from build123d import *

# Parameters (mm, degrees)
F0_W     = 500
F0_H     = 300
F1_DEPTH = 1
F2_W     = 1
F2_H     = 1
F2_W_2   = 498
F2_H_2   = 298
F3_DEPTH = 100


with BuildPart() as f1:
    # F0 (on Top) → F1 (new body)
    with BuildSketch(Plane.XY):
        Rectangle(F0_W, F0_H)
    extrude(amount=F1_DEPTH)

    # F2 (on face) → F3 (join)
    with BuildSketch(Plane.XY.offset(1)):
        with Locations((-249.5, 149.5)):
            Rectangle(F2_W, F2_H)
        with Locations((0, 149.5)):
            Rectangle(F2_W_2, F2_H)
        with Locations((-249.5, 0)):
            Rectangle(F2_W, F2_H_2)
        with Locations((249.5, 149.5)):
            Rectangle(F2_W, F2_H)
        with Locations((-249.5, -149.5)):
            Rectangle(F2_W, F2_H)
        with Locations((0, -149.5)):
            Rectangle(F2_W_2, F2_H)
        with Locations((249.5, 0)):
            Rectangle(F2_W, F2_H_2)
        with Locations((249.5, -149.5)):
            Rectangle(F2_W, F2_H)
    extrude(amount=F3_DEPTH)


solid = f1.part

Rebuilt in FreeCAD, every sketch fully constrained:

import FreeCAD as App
import Part
import Sketcher

V = App.Vector
Q = App.Units.Quantity

doc = App.newDocument("Part")
params = doc.addObject("Spreadsheet::Sheet", "Params")
for row, (alias, value) in enumerate([
    ("sketch1_width", "500 mm"),
    ("sketch1_height", "300 mm"),
    ("pad1_length", "1 mm"),
    ("sketch2_width", "500 mm"),
    ("sketch2_width2", "498 mm"),
    ("sketch2_height", "300 mm"),
    ("sketch2_height2", "298 mm"),
    ("pad2_length", "100 mm"),
], start=1):
    params.set(f"A{row}", alias)
    params.set(f"B{row}", "=" + value)
    params.setAlias(f"B{row}", alias)

body = doc.addObject("PartDesign::Body", "Body")

sketch1 = body.newObject("Sketcher::SketchObject", "Sketch")
sketch1.AttachmentSupport = (doc.getObject("XY_Plane"), [""])
sketch1.MapMode = "FlatFace"
sketch1.addGeometry(Part.LineSegment(V(-250, 150, 0), V(-250, -150, 0)), False)
sketch1.addGeometry(Part.LineSegment(V(-250, -150, 0), V(250, -150, 0)), False)
sketch1.addGeometry(Part.LineSegment(V(250, -150, 0), V(250, 150, 0)), False)
sketch1.addGeometry(Part.LineSegment(V(250, 150, 0), V(-250, 150, 0)), False)
sketch1.addConstraint(Sketcher.Constraint("Coincident", 0, 2, 1, 1))
sketch1.addConstraint(Sketcher.Constraint("Coincident", 1, 2, 2, 1))
sketch1.addConstraint(Sketcher.Constraint("Coincident", 2, 2, 3, 1))
sketch1.addConstraint(Sketcher.Constraint("Coincident", 3, 2, 0, 1))
sketch1.addConstraint(Sketcher.Constraint("Vertical", 0))
sketch1.addConstraint(Sketcher.Constraint("Horizontal", 1))
sketch1.addConstraint(Sketcher.Constraint("Vertical", 2))
sketch1.addConstraint(Sketcher.Constraint("Horizontal", 3))
sketch1.addConstraint(Sketcher.Constraint("Symmetric", 0, 2, 2, 2, -1, 1))
sketch1.addConstraint(Sketcher.Constraint("DistanceX", 1, 1, 1, 2, Q("500 mm")))
sketch1.addConstraint(Sketcher.Constraint("DistanceY", 0, 2, 0, 1, Q("300 mm")))
sketch1.setExpression("Constraints[9]", "Params.sketch1_width")
sketch1.setExpression("Constraints[10]", "Params.sketch1_height")
pad1 = body.newObject("PartDesign::Pad", "Pad")
pad1.Profile = sketch1
pad1.setExpression("Length", "Params.pad1_length")

sketch2 = body.newObject("Sketcher::SketchObject", "Sketch001")
sketch2.AttachmentSupport = (doc.getObject("XY_Plane"), [""])
sketch2.MapMode = "FlatFace"
sketch2.AttachmentOffset = App.Placement(V(0, 0, 1), App.Rotation())
sketch2.addGeometry(Part.LineSegment(V(-250, -150, 0), V(250, -150, 0)), False)
sketch2.addGeometry(Part.LineSegment(V(250, -150, 0), V(250, 150, 0)), False)
sketch2.addGeometry(Part.LineSegment(V(250, 150, 0), V(-250, 150, 0)), False)
sketch2.addGeometry(Part.LineSegment(V(-250, 150, 0), V(-250, -150, 0)), False)
sketch2.addGeometry(Part.LineSegment(V(249, -149, 0), V(-249, -149, 0)), False)
sketch2.addGeometry(Part.LineSegment(V(-249, -149, 0), V(-249, 149, 0)), False)
sketch2.addGeometry(Part.LineSegment(V(-249, 149, 0), V(249, 149, 0)), False)
sketch2.addGeometry(Part.LineSegment(V(249, 149, 0), V(249, -149, 0)), False)
sketch2.addConstraint(Sketcher.Constraint("Coincident", 0, 2, 1, 1))
sketch2.addConstraint(Sketcher.Constraint("Coincident", 1, 2, 2, 1))
sketch2.addConstraint(Sketcher.Constraint("Coincident", 2, 2, 3, 1))
sketch2.addConstraint(Sketcher.Constraint("Coincident", 3, 2, 0, 1))
sketch2.addConstraint(Sketcher.Constraint("Coincident", 4, 2, 5, 1))
sketch2.addConstraint(Sketcher.Constraint("Coincident", 5, 2, 6, 1))
sketch2.addConstraint(Sketcher.Constraint("Coincident", 6, 2, 7, 1))
sketch2.addConstraint(Sketcher.Constraint("Coincident", 7, 2, 4, 1))
sketch2.addConstraint(Sketcher.Constraint("Horizontal", 0))
sketch2.addConstraint(Sketcher.Constraint("Vertical", 1))
sketch2.addConstraint(Sketcher.Constraint("Horizontal", 2))
sketch2.addConstraint(Sketcher.Constraint("Vertical", 3))
sketch2.addConstraint(Sketcher.Constraint("Horizontal", 4))
sketch2.addConstraint(Sketcher.Constraint("Vertical", 5))
sketch2.addConstraint(Sketcher.Constraint("Horizontal", 6))
sketch2.addConstraint(Sketcher.Constraint("Vertical", 7))
sketch2.addConstraint(Sketcher.Constraint("Symmetric", 0, 2, 2, 2, -1, 1))
sketch2.addConstraint(Sketcher.Constraint("Symmetric", 4, 2, 6, 2, -1, 1))
sketch2.addConstraint(Sketcher.Constraint("DistanceX", 0, 1, 0, 2, Q("500 mm")))
sketch2.addConstraint(Sketcher.Constraint("DistanceX", 4, 2, 4, 1, Q("498 mm")))
sketch2.addConstraint(Sketcher.Constraint("DistanceY", 1, 1, 1, 2, Q("300 mm")))
sketch2.addConstraint(Sketcher.Constraint("DistanceY", 5, 1, 5, 2, Q("298 mm")))
sketch2.setExpression("Constraints[18]", "Params.sketch2_width")
sketch2.setExpression("Constraints[19]", "Params.sketch2_width2")
sketch2.setExpression("Constraints[20]", "Params.sketch2_height")
sketch2.setExpression("Constraints[21]", "Params.sketch2_height2")
pad2 = body.newObject("PartDesign::Pad", "Pad001")
pad2.Profile = sketch2
pad2.setExpression("Length", "Params.pad2_length")

doc.recompute()
